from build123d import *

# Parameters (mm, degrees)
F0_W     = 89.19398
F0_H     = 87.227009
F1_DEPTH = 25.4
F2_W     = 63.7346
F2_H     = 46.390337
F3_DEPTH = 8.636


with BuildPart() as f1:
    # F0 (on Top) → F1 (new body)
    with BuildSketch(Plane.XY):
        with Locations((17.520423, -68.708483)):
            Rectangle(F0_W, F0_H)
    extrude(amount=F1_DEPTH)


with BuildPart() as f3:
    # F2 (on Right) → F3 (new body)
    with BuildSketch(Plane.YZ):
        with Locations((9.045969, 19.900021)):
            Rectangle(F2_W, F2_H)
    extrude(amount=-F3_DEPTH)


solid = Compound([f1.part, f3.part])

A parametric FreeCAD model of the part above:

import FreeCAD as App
import Part
import Sketcher
from FreeCAD import Vector
Q = App.Units.Quantity


def add_polygon(sketch, points):
    """Adds a closed chain of lines whose ends are joined by coincident constraints."""
    first, n = sketch.GeometryCount, len(points)
    for a, b in zip(points, points[1:] + points[:1]):
        sketch.addGeometry(Part.LineSegment(App.Vector(*a, 0), App.Vector(*b, 0)), False)
    for i in range(n):
        sketch.addConstraint(Sketcher.Constraint("Coincident", first + i, 2, first + (i + 1) % n, 1))

doc = App.newDocument("Part")
body = doc.addObject("PartDesign::Body", "Body")

# Sketch on XY plane
sketch1 = body.newObject("Sketcher::SketchObject", "Sketch")
sketch1.AttachmentSupport = (doc.getObject("XY_Plane"), [""])
sketch1.MapMode = "FlatFace"
add_polygon(sketch1, [(-27, -25), (-27, -112), (62, -112), (62, -25)])  # lines 0-3
sketch1.addConstraint(Sketcher.Constraint("Vertical", 0))
sketch1.addConstraint(Sketcher.Constraint("Horizontal", 1))
sketch1.addConstraint(Sketcher.Constraint("Vertical", 2))
sketch1.addConstraint(Sketcher.Constraint("Horizontal", 3))
sketch1.addConstraint(Sketcher.Constraint("DistanceX", 1, 1, 1, 2, 89.19398))
sketch1.addConstraint(Sketcher.Constraint("DistanceY", 0, 2, 0, 1, 87.227009))
sketch1.addConstraint(Sketcher.Constraint("DistanceY", 2, 2, -1, 1, 25.094978))
sketch1.addConstraint(Sketcher.Constraint("DistanceX", 0, 2, -1, 1, 27.076567))
pad1 = body.newObject("PartDesign::Pad", "Pad")
pad1.Profile = sketch1
pad1.Length = Q("1 in")
body2 = doc.addObject("PartDesign::Body", "Body001")

# Sketch on YZ plane
sketch2 = body2.newObject("Sketcher::SketchObject", "Sketch001")
sketch2.AttachmentSupport = (doc.getObject("YZ_Plane001"), [""])
sketch2.MapMode = "FlatFace"
add_polygon(sketch2, [(-23, 43), (-23, -3), (41, -3), (41, 43)])  # lines 0-3
sketch2.addConstraint(Sketcher.Constraint("Vertical", 0))
sketch2.addConstraint(Sketcher.Constraint("Horizontal", 1))
sketch2.addConstraint(Sketcher.Constraint("Vertical", 2))
sketch2.addConstraint(Sketcher.Constraint("Horizontal", 3))
sketch2.addConstraint(Sketcher.Constraint("DistanceX", 1, 1, 1, 2, 63.7346))
sketch2.addConstraint(Sketcher.Constraint("DistanceY", 0, 2, 0, 1, 46.390337))
sketch2.addConstraint(Sketcher.Constraint("DistanceX", 0, 2, -1, 1, 22.821331))
sketch2.addConstraint(Sketcher.Constraint("DistanceY", -1, 1, 2, 2, 43.095189))
pad2 = body2.newObject("PartDesign::Pad", "Pad001")
pad2.Profile = sketch2
pad2.Length = Q("0.34 in")
pad2.Reversed = True

doc.recompute()
